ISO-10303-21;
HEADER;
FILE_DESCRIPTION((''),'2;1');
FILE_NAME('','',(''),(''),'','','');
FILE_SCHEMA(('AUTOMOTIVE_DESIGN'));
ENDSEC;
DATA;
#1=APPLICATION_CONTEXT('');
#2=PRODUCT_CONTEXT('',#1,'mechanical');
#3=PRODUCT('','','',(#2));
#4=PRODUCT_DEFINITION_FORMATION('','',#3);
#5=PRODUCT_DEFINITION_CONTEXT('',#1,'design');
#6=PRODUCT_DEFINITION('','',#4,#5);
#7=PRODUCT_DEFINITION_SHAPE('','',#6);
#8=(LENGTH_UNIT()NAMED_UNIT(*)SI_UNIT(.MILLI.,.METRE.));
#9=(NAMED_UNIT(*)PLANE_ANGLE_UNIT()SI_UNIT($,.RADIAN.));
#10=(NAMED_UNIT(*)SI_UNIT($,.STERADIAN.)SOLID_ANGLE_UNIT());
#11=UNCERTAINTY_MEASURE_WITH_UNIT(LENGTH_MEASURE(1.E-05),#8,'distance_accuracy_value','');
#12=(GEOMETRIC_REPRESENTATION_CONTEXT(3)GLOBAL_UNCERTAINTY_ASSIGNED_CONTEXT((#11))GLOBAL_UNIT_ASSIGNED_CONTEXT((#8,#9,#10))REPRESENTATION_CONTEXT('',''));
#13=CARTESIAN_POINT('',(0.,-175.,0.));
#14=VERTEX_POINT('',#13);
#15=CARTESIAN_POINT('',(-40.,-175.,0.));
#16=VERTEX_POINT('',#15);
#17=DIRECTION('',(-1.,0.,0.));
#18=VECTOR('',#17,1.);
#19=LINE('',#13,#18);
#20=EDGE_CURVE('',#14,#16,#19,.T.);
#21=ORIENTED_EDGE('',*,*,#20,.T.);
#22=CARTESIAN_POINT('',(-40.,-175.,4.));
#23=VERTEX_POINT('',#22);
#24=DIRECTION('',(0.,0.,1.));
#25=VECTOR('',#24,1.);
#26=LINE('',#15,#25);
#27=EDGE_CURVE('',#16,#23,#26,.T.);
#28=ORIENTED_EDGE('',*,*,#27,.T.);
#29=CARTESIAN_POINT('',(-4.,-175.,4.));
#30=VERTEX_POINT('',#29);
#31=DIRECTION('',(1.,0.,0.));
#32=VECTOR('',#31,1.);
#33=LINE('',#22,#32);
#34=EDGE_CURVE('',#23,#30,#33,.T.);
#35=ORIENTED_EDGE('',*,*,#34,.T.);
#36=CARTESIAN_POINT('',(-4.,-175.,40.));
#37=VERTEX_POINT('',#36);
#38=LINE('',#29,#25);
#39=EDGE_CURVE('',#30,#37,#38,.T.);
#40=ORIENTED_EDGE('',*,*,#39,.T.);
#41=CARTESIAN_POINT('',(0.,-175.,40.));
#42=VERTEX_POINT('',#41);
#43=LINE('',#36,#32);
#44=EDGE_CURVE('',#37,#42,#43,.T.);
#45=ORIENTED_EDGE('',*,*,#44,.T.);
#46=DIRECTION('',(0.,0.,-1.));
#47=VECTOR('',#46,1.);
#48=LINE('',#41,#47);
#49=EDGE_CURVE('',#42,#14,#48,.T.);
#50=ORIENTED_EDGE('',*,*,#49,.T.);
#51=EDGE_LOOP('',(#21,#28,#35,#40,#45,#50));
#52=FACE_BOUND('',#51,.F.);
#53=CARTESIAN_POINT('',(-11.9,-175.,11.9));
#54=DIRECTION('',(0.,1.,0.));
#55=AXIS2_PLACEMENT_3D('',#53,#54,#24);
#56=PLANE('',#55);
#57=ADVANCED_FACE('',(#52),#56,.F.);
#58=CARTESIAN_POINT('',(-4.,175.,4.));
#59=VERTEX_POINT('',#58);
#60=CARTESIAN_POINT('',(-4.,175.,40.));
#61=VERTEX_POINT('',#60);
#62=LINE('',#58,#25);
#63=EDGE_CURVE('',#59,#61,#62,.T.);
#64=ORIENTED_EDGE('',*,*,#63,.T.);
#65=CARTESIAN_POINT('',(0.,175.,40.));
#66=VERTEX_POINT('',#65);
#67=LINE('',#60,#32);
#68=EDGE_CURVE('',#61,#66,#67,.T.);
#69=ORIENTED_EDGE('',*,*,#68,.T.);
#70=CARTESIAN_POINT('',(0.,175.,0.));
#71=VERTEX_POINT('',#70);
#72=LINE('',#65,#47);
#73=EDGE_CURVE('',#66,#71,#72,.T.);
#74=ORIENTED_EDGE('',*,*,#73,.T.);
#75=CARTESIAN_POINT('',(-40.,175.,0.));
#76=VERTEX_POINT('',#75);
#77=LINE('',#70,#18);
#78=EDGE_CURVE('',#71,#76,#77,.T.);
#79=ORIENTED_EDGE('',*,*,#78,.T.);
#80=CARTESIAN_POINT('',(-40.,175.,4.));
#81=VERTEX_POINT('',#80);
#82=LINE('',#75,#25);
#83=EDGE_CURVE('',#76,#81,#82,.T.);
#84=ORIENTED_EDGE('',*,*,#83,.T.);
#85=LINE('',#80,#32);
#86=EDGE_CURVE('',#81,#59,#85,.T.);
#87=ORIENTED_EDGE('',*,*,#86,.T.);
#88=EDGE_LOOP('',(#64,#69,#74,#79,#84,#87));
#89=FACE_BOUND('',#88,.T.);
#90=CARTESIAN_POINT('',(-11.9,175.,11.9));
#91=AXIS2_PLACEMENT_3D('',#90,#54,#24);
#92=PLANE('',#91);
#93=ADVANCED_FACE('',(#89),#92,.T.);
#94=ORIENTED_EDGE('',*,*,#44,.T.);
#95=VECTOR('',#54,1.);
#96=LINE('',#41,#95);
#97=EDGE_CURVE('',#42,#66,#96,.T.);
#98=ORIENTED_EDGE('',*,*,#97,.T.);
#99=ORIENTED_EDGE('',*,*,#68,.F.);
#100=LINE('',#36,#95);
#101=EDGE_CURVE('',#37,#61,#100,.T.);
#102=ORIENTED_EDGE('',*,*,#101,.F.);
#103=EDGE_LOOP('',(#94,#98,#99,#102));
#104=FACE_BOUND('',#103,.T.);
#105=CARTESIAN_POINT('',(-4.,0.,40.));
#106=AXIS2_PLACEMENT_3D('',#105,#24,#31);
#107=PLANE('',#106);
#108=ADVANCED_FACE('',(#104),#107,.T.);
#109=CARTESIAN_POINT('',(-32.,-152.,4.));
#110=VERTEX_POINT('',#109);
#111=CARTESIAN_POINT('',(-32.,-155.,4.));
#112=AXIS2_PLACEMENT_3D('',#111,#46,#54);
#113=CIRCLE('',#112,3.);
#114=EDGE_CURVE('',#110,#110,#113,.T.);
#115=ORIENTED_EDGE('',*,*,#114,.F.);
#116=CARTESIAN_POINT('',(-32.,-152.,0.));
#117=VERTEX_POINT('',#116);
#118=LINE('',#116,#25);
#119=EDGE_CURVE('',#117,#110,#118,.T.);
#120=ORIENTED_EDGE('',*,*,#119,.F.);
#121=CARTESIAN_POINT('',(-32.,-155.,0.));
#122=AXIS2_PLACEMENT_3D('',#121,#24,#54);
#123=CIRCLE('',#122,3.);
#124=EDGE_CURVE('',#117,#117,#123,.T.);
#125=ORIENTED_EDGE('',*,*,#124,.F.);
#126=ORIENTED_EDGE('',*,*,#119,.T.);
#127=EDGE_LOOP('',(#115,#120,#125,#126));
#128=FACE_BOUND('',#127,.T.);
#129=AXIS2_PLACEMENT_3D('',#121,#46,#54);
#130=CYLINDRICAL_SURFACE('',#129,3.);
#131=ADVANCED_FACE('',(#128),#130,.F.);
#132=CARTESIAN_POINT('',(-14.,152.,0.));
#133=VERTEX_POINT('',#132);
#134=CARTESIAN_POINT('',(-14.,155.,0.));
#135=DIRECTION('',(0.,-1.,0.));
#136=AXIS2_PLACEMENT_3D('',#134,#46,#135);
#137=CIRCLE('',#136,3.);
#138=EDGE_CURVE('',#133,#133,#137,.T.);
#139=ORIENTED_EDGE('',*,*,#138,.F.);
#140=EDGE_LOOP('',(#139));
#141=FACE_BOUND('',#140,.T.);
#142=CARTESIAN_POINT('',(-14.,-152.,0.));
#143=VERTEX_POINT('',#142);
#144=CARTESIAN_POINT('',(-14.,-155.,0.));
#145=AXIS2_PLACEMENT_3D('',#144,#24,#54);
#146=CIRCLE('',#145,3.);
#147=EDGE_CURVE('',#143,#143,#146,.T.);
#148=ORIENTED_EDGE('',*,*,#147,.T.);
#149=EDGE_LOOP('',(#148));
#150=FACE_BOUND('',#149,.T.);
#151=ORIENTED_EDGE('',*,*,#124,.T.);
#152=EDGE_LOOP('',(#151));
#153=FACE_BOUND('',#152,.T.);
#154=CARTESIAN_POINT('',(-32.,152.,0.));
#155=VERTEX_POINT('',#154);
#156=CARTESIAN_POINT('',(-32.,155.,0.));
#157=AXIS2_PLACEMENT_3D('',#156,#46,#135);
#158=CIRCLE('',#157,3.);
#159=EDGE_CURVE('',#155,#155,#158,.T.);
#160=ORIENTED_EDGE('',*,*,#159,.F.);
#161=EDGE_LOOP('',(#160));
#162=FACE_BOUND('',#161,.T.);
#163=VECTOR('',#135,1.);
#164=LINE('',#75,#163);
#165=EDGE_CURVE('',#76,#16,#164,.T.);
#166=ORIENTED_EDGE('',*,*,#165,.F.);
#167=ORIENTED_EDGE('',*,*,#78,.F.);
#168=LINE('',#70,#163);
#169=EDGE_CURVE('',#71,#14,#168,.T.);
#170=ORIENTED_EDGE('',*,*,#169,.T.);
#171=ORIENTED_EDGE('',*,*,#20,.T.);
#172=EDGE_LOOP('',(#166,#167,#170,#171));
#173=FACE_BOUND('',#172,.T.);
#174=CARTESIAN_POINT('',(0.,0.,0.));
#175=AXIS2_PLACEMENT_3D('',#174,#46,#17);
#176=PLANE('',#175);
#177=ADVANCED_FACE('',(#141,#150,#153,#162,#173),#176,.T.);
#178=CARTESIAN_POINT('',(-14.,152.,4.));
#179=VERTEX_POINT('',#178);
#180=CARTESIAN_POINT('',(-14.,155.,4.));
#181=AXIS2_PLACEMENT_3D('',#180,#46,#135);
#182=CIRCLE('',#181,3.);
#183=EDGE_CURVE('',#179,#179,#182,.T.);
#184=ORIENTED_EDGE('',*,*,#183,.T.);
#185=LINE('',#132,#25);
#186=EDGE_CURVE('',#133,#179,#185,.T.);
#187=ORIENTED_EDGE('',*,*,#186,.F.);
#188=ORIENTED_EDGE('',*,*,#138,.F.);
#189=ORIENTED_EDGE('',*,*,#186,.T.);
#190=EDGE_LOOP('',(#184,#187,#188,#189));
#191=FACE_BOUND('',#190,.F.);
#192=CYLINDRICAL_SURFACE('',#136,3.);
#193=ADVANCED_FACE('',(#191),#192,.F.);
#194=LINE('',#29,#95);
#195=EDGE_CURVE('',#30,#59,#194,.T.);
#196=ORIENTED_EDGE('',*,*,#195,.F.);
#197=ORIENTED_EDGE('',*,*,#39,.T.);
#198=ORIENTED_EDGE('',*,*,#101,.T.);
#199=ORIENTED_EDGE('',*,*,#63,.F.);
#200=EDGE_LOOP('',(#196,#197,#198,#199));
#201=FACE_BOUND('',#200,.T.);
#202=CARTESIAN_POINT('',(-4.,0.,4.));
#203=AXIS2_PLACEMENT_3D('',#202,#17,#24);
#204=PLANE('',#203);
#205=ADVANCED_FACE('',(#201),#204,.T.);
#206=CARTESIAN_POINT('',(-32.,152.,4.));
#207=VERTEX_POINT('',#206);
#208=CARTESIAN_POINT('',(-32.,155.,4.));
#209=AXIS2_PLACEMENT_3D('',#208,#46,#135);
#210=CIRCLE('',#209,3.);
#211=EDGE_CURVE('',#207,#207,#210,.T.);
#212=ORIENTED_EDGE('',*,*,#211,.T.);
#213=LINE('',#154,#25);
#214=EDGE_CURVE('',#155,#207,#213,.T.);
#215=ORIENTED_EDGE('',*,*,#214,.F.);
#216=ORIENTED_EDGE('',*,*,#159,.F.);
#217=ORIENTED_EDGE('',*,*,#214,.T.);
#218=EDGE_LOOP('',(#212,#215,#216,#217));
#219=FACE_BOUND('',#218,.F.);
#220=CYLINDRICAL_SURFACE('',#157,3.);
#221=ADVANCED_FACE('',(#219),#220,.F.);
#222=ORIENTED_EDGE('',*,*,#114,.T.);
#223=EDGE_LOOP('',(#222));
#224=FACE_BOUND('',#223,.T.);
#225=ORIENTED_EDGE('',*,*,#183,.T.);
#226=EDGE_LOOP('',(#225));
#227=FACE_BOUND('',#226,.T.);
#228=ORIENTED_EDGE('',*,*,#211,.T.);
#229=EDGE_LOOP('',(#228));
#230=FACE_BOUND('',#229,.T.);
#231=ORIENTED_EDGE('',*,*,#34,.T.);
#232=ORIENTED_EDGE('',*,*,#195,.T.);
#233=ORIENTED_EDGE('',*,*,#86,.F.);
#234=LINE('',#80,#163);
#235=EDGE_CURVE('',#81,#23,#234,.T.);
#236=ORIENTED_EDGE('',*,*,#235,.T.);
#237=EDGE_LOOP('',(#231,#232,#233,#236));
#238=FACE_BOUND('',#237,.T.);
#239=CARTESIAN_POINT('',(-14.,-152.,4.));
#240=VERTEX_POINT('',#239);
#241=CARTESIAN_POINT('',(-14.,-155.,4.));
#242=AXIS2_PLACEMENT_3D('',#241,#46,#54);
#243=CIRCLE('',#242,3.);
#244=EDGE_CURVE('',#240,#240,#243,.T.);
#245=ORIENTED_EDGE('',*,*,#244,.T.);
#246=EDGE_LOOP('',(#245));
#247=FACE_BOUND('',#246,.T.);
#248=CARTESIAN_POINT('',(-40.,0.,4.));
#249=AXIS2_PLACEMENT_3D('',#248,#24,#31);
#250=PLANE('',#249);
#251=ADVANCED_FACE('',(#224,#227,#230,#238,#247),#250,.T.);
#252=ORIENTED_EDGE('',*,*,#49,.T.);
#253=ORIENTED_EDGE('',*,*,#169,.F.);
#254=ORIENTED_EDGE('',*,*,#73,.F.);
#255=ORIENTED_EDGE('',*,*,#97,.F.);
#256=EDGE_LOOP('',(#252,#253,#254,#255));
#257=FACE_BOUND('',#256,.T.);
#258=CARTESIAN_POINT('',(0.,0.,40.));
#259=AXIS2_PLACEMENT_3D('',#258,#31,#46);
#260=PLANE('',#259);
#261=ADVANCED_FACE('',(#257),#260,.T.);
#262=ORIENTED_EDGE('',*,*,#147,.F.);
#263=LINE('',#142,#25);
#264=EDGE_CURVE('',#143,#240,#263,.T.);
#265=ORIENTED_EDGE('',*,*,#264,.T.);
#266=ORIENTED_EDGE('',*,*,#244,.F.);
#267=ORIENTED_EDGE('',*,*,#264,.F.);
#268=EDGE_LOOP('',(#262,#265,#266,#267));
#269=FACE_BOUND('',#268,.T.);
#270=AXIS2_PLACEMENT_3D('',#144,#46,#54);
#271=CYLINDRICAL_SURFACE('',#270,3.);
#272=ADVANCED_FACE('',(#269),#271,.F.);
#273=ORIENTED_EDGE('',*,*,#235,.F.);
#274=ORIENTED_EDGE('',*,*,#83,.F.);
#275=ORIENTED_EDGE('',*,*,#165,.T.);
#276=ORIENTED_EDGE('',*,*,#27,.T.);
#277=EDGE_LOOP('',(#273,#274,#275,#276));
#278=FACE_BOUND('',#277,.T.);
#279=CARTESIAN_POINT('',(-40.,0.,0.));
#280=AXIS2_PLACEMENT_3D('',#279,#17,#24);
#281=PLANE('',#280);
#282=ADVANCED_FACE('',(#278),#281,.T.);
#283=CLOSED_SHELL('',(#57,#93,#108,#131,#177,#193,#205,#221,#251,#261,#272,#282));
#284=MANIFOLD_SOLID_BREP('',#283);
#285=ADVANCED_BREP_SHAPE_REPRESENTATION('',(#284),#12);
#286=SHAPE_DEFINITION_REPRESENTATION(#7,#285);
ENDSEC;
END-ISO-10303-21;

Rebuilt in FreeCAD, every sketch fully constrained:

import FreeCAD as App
import Part
import Sketcher
from FreeCAD import Vector
Q = App.Units.Quantity

doc = App.newDocument("Part")
body = doc.addObject("PartDesign::Body", "Body")

sketch1 = body.newObject("Sketcher::SketchObject", "Sketch")
sketch1.AttachmentSupport = (doc.getObject("XZ_Plane"), [""])
sketch1.MapMode = "FlatFace"
sketch1.addGeometry(Part.LineSegment(Vector(-4, 4, 0), Vector(-40, 4, 0)), False)
sketch1.addGeometry(Part.LineSegment(Vector(-40, 4, 0), Vector(-40, 0, 0)), False)
sketch1.addGeometry(Part.LineSegment(Vector(-40, 0, 0), Vector(0, 0, 0)), False)
sketch1.addGeometry(Part.LineSegment(Vector(0, 0, 0), Vector(0, 40, 0)), False)
sketch1.addGeometry(Part.LineSegment(Vector(0, 40, 0), Vector(-4, 40, 0)), False)
sketch1.addGeometry(Part.LineSegment(Vector(-4, 40, 0), Vector(-4, 4, 0)), False)
sketch1.addConstraint(Sketcher.Constraint("Coincident", 0, 2, 1, 1))
sketch1.addConstraint(Sketcher.Constraint("Coincident", 1, 2, 2, 1))
sketch1.addConstraint(Sketcher.Constraint("Coincident", 2, 2, 3, 1))
sketch1.addConstraint(Sketcher.Constraint("Coincident", 3, 2, 4, 1))
sketch1.addConstraint(Sketcher.Constraint("Coincident", 4, 2, 5, 1))
sketch1.addConstraint(Sketcher.Constraint("Coincident", 5, 2, 0, 1))
sketch1.addConstraint(Sketcher.Constraint("Horizontal", 0))
sketch1.addConstraint(Sketcher.Constraint("Vertical", 1))
sketch1.addConstraint(Sketcher.Constraint("Horizontal", 2))
sketch1.addConstraint(Sketcher.Constraint("Vertical", 3))
sketch1.addConstraint(Sketcher.Constraint("Horizontal", 4))
sketch1.addConstraint(Sketcher.Constraint("Vertical", 5))
sketch1.addConstraint(Sketcher.Constraint("Coincident", 2, 2, -1, 1))
sketch1.addConstraint(Sketcher.Constraint("Equal", 4, 1))
sketch1.addConstraint(Sketcher.Constraint("Equal", 2, 3))
sketch1.addConstraint(Sketcher.Constraint("DistanceX", 0, 2, 0, 1, Q("36 mm")))
sketch1.addConstraint(Sketcher.Constraint("DistanceX", 2, 1, 2, 2, Q("40 mm")))
pad1 = body.newObject("PartDesign::Pad", "Pad")
pad1.Profile = sketch1
pad1.Length = 350
pad1.Midplane = True

sketch2 = body.newObject("Sketcher::SketchObject", "Sketch001")
sketch2.AttachmentSupport = (doc.getObject("XY_Plane"), [""])
sketch2.MapMode = "FlatFace"
sketch2.addGeometry(Part.Circle(Vector(-32, 155, 0), Vector(0, 0, 1), 3), False)
sketch2.addGeometry(Part.Circle(Vector(-14, 155, 0), Vector(0, 0, 1), 3), False)
sketch2.addConstraint(Sketcher.Constraint("Equal", 0, 1))
sketch2.addConstraint(Sketcher.Constraint("Horizontal", 0, 3, 1, 3))
sketch2.addConstraint(Sketcher.Constraint("Diameter", 0, Q("6 mm")))
sketch2.addConstraint(Sketcher.Constraint("DistanceY", -1, 1, 0, 3, Q("155 mm")))
sketch2.addConstraint(Sketcher.Constraint("DistanceX", 0, 3, -1, 1, Q("32 mm")))
sketch2.addConstraint(Sketcher.Constraint("DistanceX", 1, 3, -1, 1, Q("14 mm")))
pocket1 = body.newObject("PartDesign::Pocket", "Pocket")
pocket1.Profile = sketch2
pocket1.Type = "ThroughAll"
pocket1.Reversed = True
doc.recompute()

mirrored = body.newObject("PartDesign::Mirrored", "Mirrored")
mirrored.Originals = [pocket1]
mirrored.MirrorPlane = (doc.getObject("XZ_Plane"), [""])
body.Tip = mirrored

doc.recompute()
